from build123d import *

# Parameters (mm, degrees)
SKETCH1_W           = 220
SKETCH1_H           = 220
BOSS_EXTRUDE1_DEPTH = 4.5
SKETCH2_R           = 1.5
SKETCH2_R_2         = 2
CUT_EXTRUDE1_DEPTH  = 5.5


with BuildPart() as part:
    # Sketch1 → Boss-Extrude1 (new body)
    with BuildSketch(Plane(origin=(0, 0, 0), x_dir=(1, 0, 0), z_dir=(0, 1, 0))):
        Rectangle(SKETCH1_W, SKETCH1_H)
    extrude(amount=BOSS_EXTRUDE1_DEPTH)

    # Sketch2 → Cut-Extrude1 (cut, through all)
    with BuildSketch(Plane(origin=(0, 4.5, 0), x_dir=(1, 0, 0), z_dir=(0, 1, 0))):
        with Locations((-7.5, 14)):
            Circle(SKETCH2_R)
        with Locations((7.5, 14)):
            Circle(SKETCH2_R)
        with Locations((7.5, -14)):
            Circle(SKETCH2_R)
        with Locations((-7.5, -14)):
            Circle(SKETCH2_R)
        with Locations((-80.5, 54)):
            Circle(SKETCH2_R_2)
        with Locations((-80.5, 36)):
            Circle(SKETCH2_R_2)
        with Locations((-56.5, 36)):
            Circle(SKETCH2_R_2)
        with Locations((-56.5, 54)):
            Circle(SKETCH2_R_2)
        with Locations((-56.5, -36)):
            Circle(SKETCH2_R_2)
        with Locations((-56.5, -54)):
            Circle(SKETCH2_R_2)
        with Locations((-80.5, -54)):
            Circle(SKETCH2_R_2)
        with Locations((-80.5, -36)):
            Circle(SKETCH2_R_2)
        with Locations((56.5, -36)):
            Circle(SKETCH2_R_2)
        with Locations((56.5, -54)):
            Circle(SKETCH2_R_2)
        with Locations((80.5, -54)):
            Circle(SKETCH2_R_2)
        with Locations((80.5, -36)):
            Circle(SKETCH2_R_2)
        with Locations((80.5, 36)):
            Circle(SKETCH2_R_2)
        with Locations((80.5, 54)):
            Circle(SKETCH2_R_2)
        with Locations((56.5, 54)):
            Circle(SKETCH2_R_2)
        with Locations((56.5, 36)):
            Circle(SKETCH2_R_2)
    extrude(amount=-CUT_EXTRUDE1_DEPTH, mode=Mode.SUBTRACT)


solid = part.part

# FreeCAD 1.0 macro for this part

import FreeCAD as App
import Part
import Sketcher
from FreeCAD import Vector


def add_polygon(sketch, points):
    """Adds a closed chain of lines whose ends are joined by coincident constraints."""
    first, n = sketch.GeometryCount, len(points)
    for a, b in zip(points, points[1:] + points[:1]):
        sketch.addGeometry(Part.LineSegment(App.Vector(*a, 0), App.Vector(*b, 0)), False)
    for i in range(n):
        sketch.addConstraint(Sketcher.Constraint("Coincident", first + i, 2, first + (i + 1) % n, 1))

doc = App.newDocument("Part")
body = doc.addObject("PartDesign::Body", "Body")

# Sketch on XZ plane
sketch1 = body.newObject("Sketcher::SketchObject", "Sketch")
sketch1.AttachmentSupport = (doc.getObject("XZ_Plane"), [""])
sketch1.MapMode = "FlatFace"
add_polygon(sketch1, [(-110, -110), (-110, 110), (110, 110), (110, -110)])  # lines 0-3
sketch1.addConstraint([
    Sketcher.Constraint("Vertical", 0),
    Sketcher.Constraint("Horizontal", 1),
    Sketcher.Constraint("Vertical", 2),
    Sketcher.Constraint("Horizontal", 3),
    Sketcher.Constraint("Symmetric", 0, 2, 2, 2, -1, 1),
    Sketcher.Constraint("Equal", 3, 0),
    Sketcher.Constraint("DistanceX", 1, 1, 1, 2, 220.0),
])
pad1 = body.newObject("PartDesign::Pad", "Pad")
pad1.Profile = sketch1
pad1.Length = 4.5
pad1.Reversed = True

# Sketch on XZ plane
sketch2 = body.newObject("Sketcher::SketchObject", "Sketch001")
sketch2.AttachmentSupport = (doc.getObject("XZ_Plane"), [""])
sketch2.MapMode = "FlatFace"
sketch2.AttachmentOffset = App.Placement(Vector(0, 0, -4.5), App.Rotation())
sketch2.addGeometry([
    Part.Circle(Vector(-7.5, -14, 0), Vector(0, 0, 1), 1.5),  # 0
    Part.Circle(Vector(7.5, -14, 0), Vector(0, 0, 1), 1.5),  # 1
    Part.Circle(Vector(7.5, 14, 0), Vector(0, 0, 1), 1.5),  # 2
    Part.Circle(Vector(-7.5, 14, 0), Vector(0, 0, 1), 1.5),  # 3
    Part.Circle(Vector(-80.5, -54, 0), Vector(0, 0, 1), 2),  # 4
    Part.Circle(Vector(-80.5, -36, 0), Vector(0, 0, 1), 2),  # 5
    Part.Circle(Vector(-56.5, -36, 0), Vector(0, 0, 1), 2),  # 6
    Part.Circle(Vector(-56.5, -54, 0), Vector(0, 0, 1), 2),  # 7
    Part.Circle(Vector(-56.5, 36, 0), Vector(0, 0, 1), 2),  # 8
    Part.Circle(Vector(-56.5, 54, 0), Vector(0, 0, 1), 2),  # 9
    Part.Circle(Vector(-80.5, 54, 0), Vector(0, 0, 1), 2),  # 10
    Part.Circle(Vector(-80.5, 36, 0), Vector(0, 0, 1), 2),  # 11
    Part.Circle(Vector(56.5, 36, 0), Vector(0, 0, 1), 2),  # 12
    Part.Circle(Vector(56.5, 54, 0), Vector(0, 0, 1), 2),  # 13
    Part.Circle(Vector(80.5, 54, 0), Vector(0, 0, 1), 2),  # 14
    Part.Circle(Vector(80.5, 36, 0), Vector(0, 0, 1), 2),  # 15
    Part.Circle(Vector(80.5, -36, 0), Vector(0, 0, 1), 2),  # 16
    Part.Circle(Vector(80.5, -54, 0), Vector(0, 0, 1), 2),  # 17
    Part.Circle(Vector(56.5, -54, 0), Vector(0, 0, 1), 2),  # 18
    Part.Circle(Vector(56.5, -36, 0), Vector(0, 0, 1), 2),  # 19
], False)
sketch2.addConstraint([
    Sketcher.Constraint("Equal", 0, 1),
    Sketcher.Constraint("Equal", 1, 2),
    Sketcher.Constraint("Equal", 2, 3),
    Sketcher.Constraint("Equal", 4, 5),
    Sketcher.Constraint("Equal", 5, 6),
    Sketcher.Constraint("Equal", 6, 7),
    Sketcher.Constraint("Equal", 7, 8),
    Sketcher.Constraint("Equal", 8, 9),
    Sketcher.Constraint("Equal", 9, 10),
    Sketcher.Constraint("Equal", 10, 11),
    Sketcher.Constraint("Equal", 11, 12),
    Sketcher.Constraint("Equal", 12, 13),
    Sketcher.Constraint("Equal", 13, 14),
    Sketcher.Constraint("Equal", 14, 15),
    Sketcher.Constraint("Equal", 15, 16),
    Sketcher.Constraint("Equal", 16, 17),
    Sketcher.Constraint("Equal", 17, 18),
    Sketcher.Constraint("Equal", 18, 19),
    Sketcher.Constraint("Symmetric", 0, 3, 2, 3, -1, 1),
    Sketcher.Constraint("Symmetric", 1, 3, 3, 3, -1, 1),
    Sketcher.Constraint("Symmetric", 6, 3, 12, 3, -1, 1),
    Sketcher.Constraint("Symmetric", 7, 3, 13, 3, -1, 1),
    Sketcher.Constraint("Symmetric", 4, 3, 14, 3, -1, 1),
    Sketcher.Constraint("Symmetric", 5, 3, 15, 3, -1, 1),
    Sketcher.Constraint("Symmetric", 11, 3, 16, 3, -1, 1),
    Sketcher.Constraint("Symmetric", 10, 3, 17, 3, -1, 1),
    Sketcher.Constraint("Symmetric", 9, 3, 18, 3, -1, 1),
    Sketcher.Constraint("Symmetric", 8, 3, 19, 3, -1, 1),
    Sketcher.Constraint("Symmetric", 0, 3, 1, 3, -2),
    Sketcher.Constraint("Symmetric", 8, 3, 12, 3, -2),
    Sketcher.Constraint("Symmetric", 9, 3, 13, 3, -2),
    Sketcher.Constraint("Symmetric", 10, 3, 14, 3, -2),
    Sketcher.Constraint("Symmetric", 11, 3, 15, 3, -2),
    Sketcher.Constraint("Horizontal", 5, 3, 6, 3),
    Sketcher.Constraint("Horizontal", 4, 3, 7, 3),
    Sketcher.Constraint("Vertical", 4, 3, 5, 3),
    Sketcher.Constraint("Vertical", 6, 3, 7, 3),
    Sketcher.Constraint("Diameter", 0, 3.0),
    Sketcher.Constraint("Diameter", 4, 4.0),
    Sketcher.Constraint("DistanceY", 0, 3, -1, 1, 14.0),
    Sketcher.Constraint("DistanceY", 4, 3, -1, 1, 54.0),
    Sketcher.Constraint("DistanceY", 5, 3, -1, 1, 36.0),
    Sketcher.Constraint("DistanceX", 0, 3, 1, 3, 15.0),
    Sketcher.Constraint("DistanceX", 4, 3, 0, 3, 73.0),
    Sketcher.Constraint("DistanceX", 5, 3, 6, 3, 24.0),
])
pocket1 = body.newObject("PartDesign::Pocket", "Pocket")
pocket1.Profile = sketch2
pocket1.Type = "ThroughAll"
pocket1.Reversed = True

doc.recompute()
